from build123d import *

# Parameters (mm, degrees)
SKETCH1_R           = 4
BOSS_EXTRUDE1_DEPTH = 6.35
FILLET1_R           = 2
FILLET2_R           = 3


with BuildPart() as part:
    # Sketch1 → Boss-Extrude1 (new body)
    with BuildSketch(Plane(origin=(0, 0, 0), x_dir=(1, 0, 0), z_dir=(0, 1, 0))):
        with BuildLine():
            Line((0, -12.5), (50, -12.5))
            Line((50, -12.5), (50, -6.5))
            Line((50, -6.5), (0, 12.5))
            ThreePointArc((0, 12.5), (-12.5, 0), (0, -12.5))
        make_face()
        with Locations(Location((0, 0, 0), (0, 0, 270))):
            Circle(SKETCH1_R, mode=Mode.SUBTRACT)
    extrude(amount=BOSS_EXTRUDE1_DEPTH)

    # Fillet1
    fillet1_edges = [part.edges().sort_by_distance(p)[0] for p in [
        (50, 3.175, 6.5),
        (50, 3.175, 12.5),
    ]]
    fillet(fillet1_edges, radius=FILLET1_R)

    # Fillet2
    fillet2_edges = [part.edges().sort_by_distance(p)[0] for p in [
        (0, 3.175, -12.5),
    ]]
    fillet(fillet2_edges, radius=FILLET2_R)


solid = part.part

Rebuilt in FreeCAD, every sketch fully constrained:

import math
import FreeCAD as App
import Part
import Sketcher

V = App.Vector
Q = App.Units.Quantity


def edges_at(feature, points):
    """Names of the edges that pass closest to the given points."""
    edges = feature.Shape.Edges
    near = lambda p: min(range(len(edges)), key=lambda i: edges[i].distToShape(Part.Vertex(*p))[0])
    return sorted({f"Edge{near(p) + 1}" for p in points})

doc = App.newDocument("Part")
body = doc.addObject("PartDesign::Body", "Body")

# Sketch on XZ plane
sketch1 = doc.addObject("Sketcher::SketchObject", "Sketch")
body.addObject(sketch1)
sketch1.AttachmentSupport = (doc.XZ_Plane, [""])
sketch1.MapMode = "FlatFace"
sketch1.addGeometry([
    Part.LineSegment(V(0, 12.5, 0), V(50, 12.5, 0)),  # 0
    Part.LineSegment(V(50, 12.5, 0), V(50, 6.5, 0)),  # 1
    Part.LineSegment(V(50, 6.5, 0), V(0, -12.5, 0)),  # 2
    Part.ArcOfCircle(Part.Circle(V(0, 0, 0), V(0, 0, 1), 12.5), math.radians(90), math.radians(270)),  # 3
    Part.Circle(V(0, 0, 0), V(0, 0, 1), 4),  # 4
], False)
sketch1.addConstraint([
    Sketcher.Constraint("Coincident", 0, 2, 1, 1),
    Sketcher.Constraint("Coincident", 1, 2, 2, 1),
    Sketcher.Constraint("Coincident", 2, 2, 3, 2),
    Sketcher.Constraint("Tangent", 3, 1, 0, 1),
    Sketcher.Constraint("Horizontal", 0),
    Sketcher.Constraint("Vertical", 1),
    Sketcher.Constraint("Coincident", 3, 3, -1, 1),
    Sketcher.Constraint("Coincident", 4, 3, -1, 1),
    Sketcher.Constraint("PointOnObject", 2, 2, -2),
    Sketcher.Constraint("Diameter", 4, Q("8 mm")),
    Sketcher.Constraint("Radius", 3, Q("12.5 mm")),
    Sketcher.Constraint("DistanceX", 0, 1, 0, 2, Q("50 mm")),
    Sketcher.Constraint("DistanceY", 1, 2, 1, 1, Q("6 mm")),
])
pad1 = doc.addObject("PartDesign::Pad", "Pad")
body.addObject(pad1)
pad1.Profile = sketch1
pad1.Length = 6.35
pad1.Reversed = True
doc.recompute()

fillet = doc.addObject("PartDesign::Fillet", "Fillet")
body.addObject(fillet)
fillet.Base = (pad1, edges_at(pad1, [(50, 3.175, 6.5), (50, 3.175, 12.5)]))
fillet.Radius = 2
doc.recompute()

fillet2 = doc.addObject("PartDesign::Fillet", "Fillet001")
body.addObject(fillet2)
fillet2.Base = (fillet, edges_at(fillet, [(0, 3.175, -12.5)]))
fillet2.Radius = 3

doc.recompute()
